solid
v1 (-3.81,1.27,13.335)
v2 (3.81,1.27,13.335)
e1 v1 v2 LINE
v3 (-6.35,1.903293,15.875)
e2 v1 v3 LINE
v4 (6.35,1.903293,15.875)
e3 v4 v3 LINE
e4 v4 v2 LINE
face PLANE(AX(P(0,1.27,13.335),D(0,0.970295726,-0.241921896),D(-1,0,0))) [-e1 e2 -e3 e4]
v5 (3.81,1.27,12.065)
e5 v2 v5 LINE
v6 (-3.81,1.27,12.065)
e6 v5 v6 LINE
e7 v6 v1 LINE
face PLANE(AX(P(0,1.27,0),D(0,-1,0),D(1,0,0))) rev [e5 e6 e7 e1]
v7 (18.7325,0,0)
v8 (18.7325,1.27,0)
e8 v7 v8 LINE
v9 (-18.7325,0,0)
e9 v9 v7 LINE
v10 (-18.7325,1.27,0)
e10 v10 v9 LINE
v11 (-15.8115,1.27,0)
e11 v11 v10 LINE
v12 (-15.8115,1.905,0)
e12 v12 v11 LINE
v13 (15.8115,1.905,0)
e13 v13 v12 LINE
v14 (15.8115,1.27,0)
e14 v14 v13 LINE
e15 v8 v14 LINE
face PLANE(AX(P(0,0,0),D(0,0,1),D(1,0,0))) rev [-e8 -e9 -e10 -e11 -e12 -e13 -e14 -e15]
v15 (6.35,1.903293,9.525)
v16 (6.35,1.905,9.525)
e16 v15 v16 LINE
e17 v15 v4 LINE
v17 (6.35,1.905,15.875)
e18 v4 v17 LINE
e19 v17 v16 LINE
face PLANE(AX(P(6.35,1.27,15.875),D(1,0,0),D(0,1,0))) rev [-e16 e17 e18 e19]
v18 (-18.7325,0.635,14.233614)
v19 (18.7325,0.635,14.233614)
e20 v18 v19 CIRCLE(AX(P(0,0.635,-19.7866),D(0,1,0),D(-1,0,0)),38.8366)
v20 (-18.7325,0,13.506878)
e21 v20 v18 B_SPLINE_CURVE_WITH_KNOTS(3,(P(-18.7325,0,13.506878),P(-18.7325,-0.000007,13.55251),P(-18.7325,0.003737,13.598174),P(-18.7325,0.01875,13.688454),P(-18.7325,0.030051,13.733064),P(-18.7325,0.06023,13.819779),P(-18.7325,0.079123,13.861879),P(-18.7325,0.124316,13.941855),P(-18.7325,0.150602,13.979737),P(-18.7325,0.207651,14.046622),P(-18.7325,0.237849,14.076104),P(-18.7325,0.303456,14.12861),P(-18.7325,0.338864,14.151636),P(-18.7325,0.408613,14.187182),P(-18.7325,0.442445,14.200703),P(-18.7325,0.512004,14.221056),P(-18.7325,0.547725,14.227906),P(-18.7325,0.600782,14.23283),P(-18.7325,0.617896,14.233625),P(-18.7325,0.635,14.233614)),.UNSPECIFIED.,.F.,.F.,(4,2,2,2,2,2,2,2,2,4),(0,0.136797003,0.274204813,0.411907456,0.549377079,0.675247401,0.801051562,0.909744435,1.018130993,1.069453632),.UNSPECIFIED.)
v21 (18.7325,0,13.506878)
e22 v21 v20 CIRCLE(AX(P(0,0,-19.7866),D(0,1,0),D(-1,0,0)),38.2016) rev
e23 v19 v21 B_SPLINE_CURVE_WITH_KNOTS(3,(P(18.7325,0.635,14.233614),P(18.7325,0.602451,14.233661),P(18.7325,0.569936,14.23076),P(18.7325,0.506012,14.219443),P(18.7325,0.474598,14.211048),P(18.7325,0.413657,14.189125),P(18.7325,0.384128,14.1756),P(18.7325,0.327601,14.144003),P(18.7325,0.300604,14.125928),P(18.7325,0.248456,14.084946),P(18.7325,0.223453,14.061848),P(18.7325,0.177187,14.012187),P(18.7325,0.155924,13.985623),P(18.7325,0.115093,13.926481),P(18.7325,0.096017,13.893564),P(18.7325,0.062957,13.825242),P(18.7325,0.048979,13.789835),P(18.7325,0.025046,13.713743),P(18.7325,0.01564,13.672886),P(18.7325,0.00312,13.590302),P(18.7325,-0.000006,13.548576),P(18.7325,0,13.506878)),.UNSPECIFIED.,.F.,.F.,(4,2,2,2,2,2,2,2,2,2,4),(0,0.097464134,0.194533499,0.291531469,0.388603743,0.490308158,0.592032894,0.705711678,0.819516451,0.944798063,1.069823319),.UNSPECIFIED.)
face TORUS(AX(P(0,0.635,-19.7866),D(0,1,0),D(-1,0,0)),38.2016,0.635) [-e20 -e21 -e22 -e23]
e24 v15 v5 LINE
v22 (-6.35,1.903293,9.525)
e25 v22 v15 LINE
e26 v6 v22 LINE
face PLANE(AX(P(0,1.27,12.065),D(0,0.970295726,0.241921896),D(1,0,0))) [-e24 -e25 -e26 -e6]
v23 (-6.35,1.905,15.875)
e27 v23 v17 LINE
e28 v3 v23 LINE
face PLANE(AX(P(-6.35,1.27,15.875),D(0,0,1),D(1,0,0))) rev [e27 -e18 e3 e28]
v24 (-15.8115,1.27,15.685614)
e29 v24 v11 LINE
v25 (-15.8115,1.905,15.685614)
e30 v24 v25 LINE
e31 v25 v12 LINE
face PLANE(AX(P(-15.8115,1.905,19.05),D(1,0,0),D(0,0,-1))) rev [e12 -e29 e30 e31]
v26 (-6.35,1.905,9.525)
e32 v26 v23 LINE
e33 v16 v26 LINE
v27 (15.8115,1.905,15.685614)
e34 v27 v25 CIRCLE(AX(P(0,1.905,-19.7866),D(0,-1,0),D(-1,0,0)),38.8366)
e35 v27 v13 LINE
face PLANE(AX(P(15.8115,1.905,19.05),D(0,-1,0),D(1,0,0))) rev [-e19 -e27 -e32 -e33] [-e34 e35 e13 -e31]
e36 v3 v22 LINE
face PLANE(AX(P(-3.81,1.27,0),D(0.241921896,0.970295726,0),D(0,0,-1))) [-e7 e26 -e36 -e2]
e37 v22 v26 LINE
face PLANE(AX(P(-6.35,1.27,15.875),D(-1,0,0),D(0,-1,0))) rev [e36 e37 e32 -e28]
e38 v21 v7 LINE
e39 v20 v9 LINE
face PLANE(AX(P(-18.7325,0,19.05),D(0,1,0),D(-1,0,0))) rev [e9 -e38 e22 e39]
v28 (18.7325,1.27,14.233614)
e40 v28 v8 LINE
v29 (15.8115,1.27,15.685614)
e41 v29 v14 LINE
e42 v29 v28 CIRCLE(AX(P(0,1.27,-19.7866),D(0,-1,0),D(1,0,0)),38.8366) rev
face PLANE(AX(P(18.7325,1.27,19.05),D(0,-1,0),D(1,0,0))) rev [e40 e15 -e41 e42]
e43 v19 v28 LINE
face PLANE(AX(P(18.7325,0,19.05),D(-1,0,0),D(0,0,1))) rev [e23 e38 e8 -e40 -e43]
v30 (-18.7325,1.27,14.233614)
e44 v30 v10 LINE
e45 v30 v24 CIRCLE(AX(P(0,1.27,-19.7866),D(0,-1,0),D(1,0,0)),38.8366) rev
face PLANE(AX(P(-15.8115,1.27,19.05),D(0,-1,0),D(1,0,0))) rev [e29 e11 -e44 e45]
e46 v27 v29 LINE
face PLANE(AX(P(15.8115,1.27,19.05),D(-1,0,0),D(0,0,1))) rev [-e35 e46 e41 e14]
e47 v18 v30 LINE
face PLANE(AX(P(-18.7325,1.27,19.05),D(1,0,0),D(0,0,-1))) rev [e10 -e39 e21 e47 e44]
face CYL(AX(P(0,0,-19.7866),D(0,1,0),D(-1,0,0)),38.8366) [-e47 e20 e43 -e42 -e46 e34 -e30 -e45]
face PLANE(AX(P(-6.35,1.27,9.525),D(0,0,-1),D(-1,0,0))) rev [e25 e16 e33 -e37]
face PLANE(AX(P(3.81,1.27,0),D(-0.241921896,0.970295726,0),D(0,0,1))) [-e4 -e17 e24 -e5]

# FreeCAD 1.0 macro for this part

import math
import FreeCAD as App
import Part
import Sketcher
Q = App.Units.Quantity


def edges_at(feature, points):
    """Names of the edges that pass closest to the given points."""
    edges = feature.Shape.Edges
    near = lambda p: min(range(len(edges)), key=lambda i: edges[i].distToShape(Part.Vertex(*p))[0])
    return sorted({f"Edge{near(p) + 1}" for p in points})


def add_polygon(sketch, points):
    """Adds a closed chain of lines whose ends are joined by coincident constraints."""
    first, n = sketch.GeometryCount, len(points)
    for a, b in zip(points, points[1:] + points[:1]):
        sketch.addGeometry(Part.LineSegment(App.Vector(*a, 0), App.Vector(*b, 0)), False)
    for i in range(n):
        sketch.addConstraint(Sketcher.Constraint("Coincident", first + i, 2, first + (i + 1) % n, 1))

doc = App.newDocument("Part")
body = doc.addObject("PartDesign::Body", "Body")

sketch1 = body.newObject("Sketcher::SketchObject", "Sketch")
sketch1.AttachmentSupport = (doc.getObject("XY_Plane"), [""])
sketch1.MapMode = "FlatFace"
add_polygon(sketch1, [(-18.7, 0), (18.7, 0), (18.7, 1.3), (15.8, 1.3), (15.8, 1.9), (-15.8, 1.9), (-15.8, 1.3), (-18.7, 1.3)])
sketch1.addConstraint(Sketcher.Constraint("Horizontal", 0))
sketch1.addConstraint(Sketcher.Constraint("Vertical", 1))
sketch1.addConstraint(Sketcher.Constraint("Horizontal", 2))
sketch1.addConstraint(Sketcher.Constraint("Vertical", 3))
sketch1.addConstraint(Sketcher.Constraint("Horizontal", 4))
sketch1.addConstraint(Sketcher.Constraint("Vertical", 5))
sketch1.addConstraint(Sketcher.Constraint("Horizontal", 6))
sketch1.addConstraint(Sketcher.Constraint("Vertical", 7))
sketch1.addConstraint(Sketcher.Constraint("Symmetric", 0, 2, 7, 2, -1, 1))
sketch1.addConstraint(Sketcher.Constraint("Symmetric", 2, 2, 5, 2, -2))
sketch1.addConstraint(Sketcher.Constraint("DistanceY", 1, 1, 1, 2, Q("0.05 in")))
sketch1.addConstraint(Sketcher.Constraint("DistanceX", 0, 1, 0, 2, Q("1.475 in")))
sketch1.addConstraint(Sketcher.Constraint("DistanceX", 2, 2, 2, 1, Q("0.115 in")))
sketch1.addConstraint(Sketcher.Constraint("DistanceY", 3, 1, 3, 2, Q("0.025 in")))
pad1 = body.newObject("PartDesign::Pad", "Pad")
pad1.Profile = sketch1
pad1.Length = Q("0.75 in")

sketch2 = body.newObject("Sketcher::SketchObject", "Sketch001")
sketch2.AttachmentSupport = (doc.getObject("XZ_Plane"), [""])
sketch2.MapMode = "FlatFace"
sketch2.AttachmentOffset = App.Placement(App.Vector(0, 0, -0.075 * 25.4), App.Rotation())
add_polygon(sketch2, [(-6, 10), (-6, 16), (6, 16), (6, 10)])
sketch2.addConstraint(Sketcher.Constraint("Vertical", 0))
sketch2.addConstraint(Sketcher.Constraint("Horizontal", 1))
sketch2.addConstraint(Sketcher.Constraint("Vertical", 2))
sketch2.addConstraint(Sketcher.Constraint("Horizontal", 3))
sketch2.addConstraint(Sketcher.Constraint("DistanceX", 1, 1, 1, 2, Q("0.5 in")))
sketch2.addConstraint(Sketcher.Constraint("DistanceY", 0, 1, 0, 2, Q("0.25 in")))
sketch2.addConstraint(Sketcher.Constraint("DistanceX", 0, 2, -1, 1, Q("0.25 in")))
sketch2.addConstraint(Sketcher.Constraint("DistanceY", -1, 1, 0, 2, Q("0.625 in")))
pocket1 = body.newObject("PartDesign::Pocket", "Pocket")
pocket1.Profile = sketch2
pocket1.Length = Q("0.025 in")
pocket1.Reversed = True
doc.recompute()

chamfer = body.newObject("PartDesign::Chamfer", "Chamfer")
chamfer.Base = (pocket1, edges_at(pocket1, [
    (6.35, 1.27, 12.7),
    (0, 1.27, 15.875),
    (-6.35, 1.27, 12.7),
    (0, 1.27, 9.525),
]))
chamfer.ChamferType = "Two distances"
chamfer.Size = Q("0.1 in")
chamfer.Size2 = 0.633293
chamfer.FlipDirection = True

sketch3 = body.newObject("Sketcher::SketchObject", "Sketch002")
sketch3.AttachmentSupport = (doc.getObject("XZ_Plane"), [""])
sketch3.MapMode = "FlatFace"
sketch3.AttachmentOffset = App.Placement(App.Vector(0, 0, -0.075 * 25.4), App.Rotation())
sketch3.addGeometry(Part.LineSegment(App.Vector(-19, 22, 0), App.Vector(19, 22, 0)), False)
sketch3.addGeometry(Part.LineSegment(App.Vector(19, 22, 0), App.Vector(19, 14, 0)), False)
sketch3.addGeometry(Part.ArcOfCircle(Part.Circle(App.Vector(0, -20, 0), App.Vector(0, 0, 1), 39), math.radians(61), math.radians(119)), False)
sketch3.addGeometry(Part.LineSegment(App.Vector(-19, 14, 0), App.Vector(-19, 22, 0)), False)
sketch3.addConstraint(Sketcher.Constraint("Coincident", 0, 2, 1, 1))
sketch3.addConstraint(Sketcher.Constraint("Coincident", 1, 2, 2, 1))
sketch3.addConstraint(Sketcher.Constraint("Coincident", 2, 2, 3, 1))
sketch3.addConstraint(Sketcher.Constraint("Coincident", 3, 2, 0, 1))
sketch3.addConstraint(Sketcher.Constraint("Horizontal", 0))
sketch3.addConstraint(Sketcher.Constraint("Vertical", 1))
sketch3.addConstraint(Sketcher.Constraint("Vertical", 3))
sketch3.addConstraint(Sketcher.Constraint("Symmetric", 1, 2, 2, 2, -2))
sketch3.addConstraint(Sketcher.Constraint("Radius", 2, Q("1.529 in")))
sketch3.addConstraint(Sketcher.Constraint("DistanceX", 0, 1, 0, 2, Q("1.475 in")))
sketch3.addConstraint(Sketcher.Constraint("DistanceY", -1, 1, 0, 2, Q("0.85 in")))
sketch3.addConstraint(Sketcher.Constraint("DistanceY", 2, 3, -1, 1, Q("0.779 in")))
pocket2 = body.newObject("PartDesign::Pocket", "Pocket001")
pocket2.Profile = sketch3
pocket2.Type = "ThroughAll"
pocket2.Reversed = True
doc.recompute()

fillet = body.newObject("PartDesign::Fillet", "Fillet")
fillet.Base = (pocket2, edges_at(pocket2, [(0, 0, 19.05)]))
fillet.Radius = Q("0.025 in")

doc.recompute()
